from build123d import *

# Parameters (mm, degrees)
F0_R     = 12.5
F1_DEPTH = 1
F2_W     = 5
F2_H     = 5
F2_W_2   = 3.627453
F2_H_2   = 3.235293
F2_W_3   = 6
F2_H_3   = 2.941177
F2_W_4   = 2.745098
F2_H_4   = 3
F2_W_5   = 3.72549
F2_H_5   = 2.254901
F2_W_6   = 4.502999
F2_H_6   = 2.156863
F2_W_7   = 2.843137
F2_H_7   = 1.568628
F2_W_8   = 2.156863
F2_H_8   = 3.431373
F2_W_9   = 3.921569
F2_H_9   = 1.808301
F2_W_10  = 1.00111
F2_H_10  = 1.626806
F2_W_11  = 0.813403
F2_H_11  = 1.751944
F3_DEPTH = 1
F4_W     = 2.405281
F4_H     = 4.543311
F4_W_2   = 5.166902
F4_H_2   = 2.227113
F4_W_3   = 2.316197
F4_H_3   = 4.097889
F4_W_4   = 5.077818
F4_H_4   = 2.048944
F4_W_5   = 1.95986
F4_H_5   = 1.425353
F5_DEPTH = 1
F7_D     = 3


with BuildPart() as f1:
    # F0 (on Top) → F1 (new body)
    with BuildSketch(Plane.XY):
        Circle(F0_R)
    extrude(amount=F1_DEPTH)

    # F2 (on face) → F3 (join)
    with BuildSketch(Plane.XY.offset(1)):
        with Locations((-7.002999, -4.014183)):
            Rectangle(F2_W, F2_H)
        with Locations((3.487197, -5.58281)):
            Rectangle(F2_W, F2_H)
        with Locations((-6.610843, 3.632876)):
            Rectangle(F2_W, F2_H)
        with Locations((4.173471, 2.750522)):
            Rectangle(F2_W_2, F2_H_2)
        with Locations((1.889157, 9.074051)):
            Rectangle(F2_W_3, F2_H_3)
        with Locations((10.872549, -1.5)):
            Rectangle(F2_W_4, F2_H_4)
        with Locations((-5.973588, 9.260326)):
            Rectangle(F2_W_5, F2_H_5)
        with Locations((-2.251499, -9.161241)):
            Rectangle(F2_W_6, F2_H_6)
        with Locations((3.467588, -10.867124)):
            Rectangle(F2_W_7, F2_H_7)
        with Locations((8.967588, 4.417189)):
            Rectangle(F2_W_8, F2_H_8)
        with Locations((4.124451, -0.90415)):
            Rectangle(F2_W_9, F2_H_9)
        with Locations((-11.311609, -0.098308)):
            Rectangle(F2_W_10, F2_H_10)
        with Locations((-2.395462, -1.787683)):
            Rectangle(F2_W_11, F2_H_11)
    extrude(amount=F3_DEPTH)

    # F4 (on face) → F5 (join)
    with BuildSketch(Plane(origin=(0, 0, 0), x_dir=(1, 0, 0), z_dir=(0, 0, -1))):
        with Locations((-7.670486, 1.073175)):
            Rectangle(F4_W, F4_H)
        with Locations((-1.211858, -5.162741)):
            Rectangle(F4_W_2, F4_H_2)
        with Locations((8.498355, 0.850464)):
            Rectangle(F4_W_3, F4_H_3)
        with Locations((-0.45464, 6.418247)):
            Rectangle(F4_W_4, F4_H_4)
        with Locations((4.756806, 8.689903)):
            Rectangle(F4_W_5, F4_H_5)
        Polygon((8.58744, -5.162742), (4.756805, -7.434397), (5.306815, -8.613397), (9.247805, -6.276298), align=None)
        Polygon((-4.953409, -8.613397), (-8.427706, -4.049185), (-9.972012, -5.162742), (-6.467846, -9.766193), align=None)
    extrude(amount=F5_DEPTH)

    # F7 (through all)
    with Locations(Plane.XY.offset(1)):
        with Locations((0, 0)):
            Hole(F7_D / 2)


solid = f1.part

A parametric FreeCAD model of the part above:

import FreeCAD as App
import Part
import Sketcher
Q = App.Units.Quantity

doc = App.newDocument("Part")
body = doc.addObject("PartDesign::Body", "Body")

# Sketch on XY plane
sketch1 = body.newObject("Sketcher::SketchObject", "Sketch")
sketch1.AttachmentSupport = (doc.getObject("XY_Plane"), [""])
sketch1.MapMode = "FlatFace"
sketch1.addGeometry(Part.Circle(App.Vector(0, 0, 0), App.Vector(0, 0, 1), 12.5), False)
sketch1.addConstraint([
    Sketcher.Constraint("Coincident", 0, 3, -1, 1),
    Sketcher.Constraint("Diameter", 0, Q("25 mm")),
])
pad1 = body.newObject("PartDesign::Pad", "Pad")
pad1.Profile = sketch1
pad1.Length = 1

# Sketch on XY plane
sketch2 = body.newObject("Sketcher::SketchObject", "Sketch001")
sketch2.AttachmentSupport = (doc.getObject("XY_Plane"), [""])
sketch2.MapMode = "FlatFace"
sketch2.AttachmentOffset = App.Placement(App.Vector(0, 0, 1), App.Rotation())
sketch2.addGeometry([
    Part.LineSegment(App.Vector(-9.502999, -1.514183, 0), App.Vector(-9.502999, -6.514183, 0)),  # 0
    Part.LineSegment(App.Vector(-9.502999, -6.514183, 0), App.Vector(-4.502999, -6.514183, 0)),  # 1
    Part.LineSegment(App.Vector(-4.502999, -6.514183, 0), App.Vector(-4.502999, -1.514183, 0)),  # 2
    Part.LineSegment(App.Vector(-4.502999, -1.514183, 0), App.Vector(-9.502999, -1.514183, 0)),  # 3
    Part.LineSegment(App.Vector(0.987197, -3.08281, 0), App.Vector(0.987197, -8.08281, 0)),  # 4
    Part.LineSegment(App.Vector(0.987197, -8.08281, 0), App.Vector(5.987197, -8.08281, 0)),  # 5
    Part.LineSegment(App.Vector(5.987197, -8.08281, 0), App.Vector(5.987197, -3.08281, 0)),  # 6
    Part.LineSegment(App.Vector(5.987197, -3.08281, 0), App.Vector(0.987197, -3.08281, 0)),  # 7
    Part.LineSegment(App.Vector(-9.110843, 6.132876, 0), App.Vector(-9.110843, 1.132876, 0)),  # 8
    Part.LineSegment(App.Vector(-9.110843, 1.132876, 0), App.Vector(-4.110843, 1.132876, 0)),  # 9
    Part.LineSegment(App.Vector(-4.110843, 1.132876, 0), App.Vector(-4.110843, 6.132876, 0)),  # 10
    Part.LineSegment(App.Vector(-4.110843, 6.132876, 0), App.Vector(-9.110843, 6.132876, 0)),  # 11
    Part.LineSegment(App.Vector(2.359745, 4.368169, 0), App.Vector(2.359745, 1.132875, 0)),  # 12
    Part.LineSegment(App.Vector(2.359745, 1.132875, 0), App.Vector(5.987197, 1.132875, 0)),  # 13
    Part.LineSegment(App.Vector(5.987197, 1.132875, 0), App.Vector(5.987197, 4.368169, 0)),  # 14
    Part.LineSegment(App.Vector(5.987197, 4.368169, 0), App.Vector(2.359745, 4.368169, 0)),  # 15
    Part.LineSegment(App.Vector(-1.110843, 10.54464, 0), App.Vector(-1.110843, 7.603463, 0)),  # 16
    Part.LineSegment(App.Vector(-1.110843, 7.603463, 0), App.Vector(4.889157, 7.603463, 0)),  # 17
    Part.LineSegment(App.Vector(4.889157, 7.603463, 0), App.Vector(4.889157, 10.54464, 0)),  # 18
    Part.LineSegment(App.Vector(4.889157, 10.54464, 0), App.Vector(-1.110843, 10.54464, 0)),  # 19
    Part.LineSegment(App.Vector(9.5, 0, 0), App.Vector(9.5, -3, 0)),  # 20
    Part.LineSegment(App.Vector(9.5, -3, 0), App.Vector(12.245098, -3, 0)),  # 21
    Part.LineSegment(App.Vector(12.245098, -3, 0), App.Vector(12.245098, 0, 0)),  # 22
    Part.LineSegment(App.Vector(12.245098, 0, 0), App.Vector(9.5, 0, 0)),  # 23
    Part.LineSegment(App.Vector(-7.836333, 10.387776, 0), App.Vector(-7.836333, 8.132876, 0)),  # 24
    Part.LineSegment(App.Vector(-7.836333, 8.132876, 0), App.Vector(-4.110843, 8.132876, 0)),  # 25
    Part.LineSegment(App.Vector(-4.110843, 8.132876, 0), App.Vector(-4.110843, 10.387776, 0)),  # 26
    Part.LineSegment(App.Vector(-4.110843, 10.387776, 0), App.Vector(-7.836333, 10.387776, 0)),  # 27
    Part.LineSegment(App.Vector(-4.502999, -8.082809, 0), App.Vector(-4.502999, -10.239672, 0)),  # 28
    Part.LineSegment(App.Vector(-4.502999, -10.239672, 0), App.Vector(0, -10.239672, 0)),  # 29
    Part.LineSegment(App.Vector(0, -10.239672, 0), App.Vector(0, -8.082809, 0)),  # 30
    Part.LineSegment(App.Vector(0, -8.082809, 0), App.Vector(-4.502999, -8.082809, 0)),  # 31
    Part.LineSegment(App.Vector(2.046019, -10.08281, 0), App.Vector(2.046019, -11.651438, 0)),  # 32
    Part.LineSegment(App.Vector(2.046019, -11.651438, 0), App.Vector(4.889157, -11.651438, 0)),  # 33
    Part.LineSegment(App.Vector(4.889157, -11.651438, 0), App.Vector(4.889157, -10.08281, 0)),  # 34
    Part.LineSegment(App.Vector(4.889157, -10.08281, 0), App.Vector(2.046019, -10.08281, 0)),  # 35
    Part.LineSegment(App.Vector(7.889157, 6.132875, 0), App.Vector(7.889157, 2.701503, 0)),  # 36
    Part.LineSegment(App.Vector(7.889157, 2.701503, 0), App.Vector(10.046019, 2.701503, 0)),  # 37
    Part.LineSegment(App.Vector(10.046019, 2.701503, 0), App.Vector(10.046019, 6.132875, 0)),  # 38
    Part.LineSegment(App.Vector(10.046019, 6.132875, 0), App.Vector(7.889157, 6.132875, 0)),  # 39
    Part.LineSegment(App.Vector(2.163667, 0, 0), App.Vector(2.163667, -1.808301, 0)),  # 40
    Part.LineSegment(App.Vector(2.163667, -1.808301, 0), App.Vector(6.085235, -1.808301, 0)),  # 41
    Part.LineSegment(App.Vector(6.085235, -1.808301, 0), App.Vector(6.085235, 0, 0)),  # 42
    Part.LineSegment(App.Vector(6.085235, 0, 0), App.Vector(2.163667, 0, 0)),  # 43
    Part.LineSegment(App.Vector(-11.812164, 0.715095, 0), App.Vector(-11.812164, -0.911711, 0)),  # 44
    Part.LineSegment(App.Vector(-11.812164, -0.911711, 0), App.Vector(-10.811054, -0.911711, 0)),  # 45
    Part.LineSegment(App.Vector(-10.811054, -0.911711, 0), App.Vector(-10.811054, 0.715095, 0)),  # 46
    Part.LineSegment(App.Vector(-10.811054, 0.715095, 0), App.Vector(-11.812164, 0.715095, 0)),  # 47
    Part.LineSegment(App.Vector(-2.802163, -0.911711, 0), App.Vector(-2.802163, -2.663655, 0)),  # 48
    Part.LineSegment(App.Vector(-2.802163, -2.663655, 0), App.Vector(-1.98876, -2.663655, 0)),  # 49
    Part.LineSegment(App.Vector(-1.98876, -2.663655, 0), App.Vector(-1.98876, -0.911711, 0)),  # 50
    Part.LineSegment(App.Vector(-1.98876, -0.911711, 0), App.Vector(-2.802163, -0.911711, 0)),  # 51
], False)
sketch2.addConstraint([
    Sketcher.Constraint("Coincident", 0, 2, 1, 1),
    Sketcher.Constraint("Coincident", 1, 2, 2, 1),
    Sketcher.Constraint("Coincident", 2, 2, 3, 1),
    Sketcher.Constraint("Coincident", 3, 2, 0, 1),
    Sketcher.Constraint("Coincident", 4, 2, 5, 1),
    Sketcher.Constraint("Coincident", 5, 2, 6, 1),
    Sketcher.Constraint("Coincident", 6, 2, 7, 1),
    Sketcher.Constraint("Coincident", 7, 2, 4, 1),
    Sketcher.Constraint("Coincident", 8, 2, 9, 1),
    Sketcher.Constraint("Coincident", 9, 2, 10, 1),
    Sketcher.Constraint("Coincident", 10, 2, 11, 1),
    Sketcher.Constraint("Coincident", 11, 2, 8, 1),
    Sketcher.Constraint("Coincident", 12, 2, 13, 1),
    Sketcher.Constraint("Coincident", 13, 2, 14, 1),
    Sketcher.Constraint("Coincident", 14, 2, 15, 1),
    Sketcher.Constraint("Coincident", 15, 2, 12, 1),
    Sketcher.Constraint("Coincident", 16, 2, 17, 1),
    Sketcher.Constraint("Coincident", 17, 2, 18, 1),
    Sketcher.Constraint("Coincident", 18, 2, 19, 1),
    Sketcher.Constraint("Coincident", 19, 2, 16, 1),
    Sketcher.Constraint("Coincident", 20, 2, 21, 1),
    Sketcher.Constraint("Coincident", 21, 2, 22, 1),
    Sketcher.Constraint("Coincident", 22, 2, 23, 1),
    Sketcher.Constraint("Coincident", 23, 2, 20, 1),
    Sketcher.Constraint("Coincident", 24, 2, 25, 1),
    Sketcher.Constraint("Coincident", 25, 2, 26, 1),
    Sketcher.Constraint("Coincident", 26, 2, 27, 1),
    Sketcher.Constraint("Coincident", 27, 2, 24, 1),
    Sketcher.Constraint("Coincident", 28, 2, 29, 1),
    Sketcher.Constraint("Coincident", 29, 2, 30, 1),
    Sketcher.Constraint("Coincident", 30, 2, 31, 1),
    Sketcher.Constraint("Coincident", 31, 2, 28, 1),
    Sketcher.Constraint("Coincident", 32, 2, 33, 1),
    Sketcher.Constraint("Coincident", 33, 2, 34, 1),
    Sketcher.Constraint("Coincident", 34, 2, 35, 1),
    Sketcher.Constraint("Coincident", 35, 2, 32, 1),
    Sketcher.Constraint("Coincident", 36, 2, 37, 1),
    Sketcher.Constraint("Coincident", 37, 2, 38, 1),
    Sketcher.Constraint("Coincident", 38, 2, 39, 1),
    Sketcher.Constraint("Coincident", 39, 2, 36, 1),
    Sketcher.Constraint("Coincident", 40, 2, 41, 1),
    Sketcher.Constraint("Coincident", 41, 2, 42, 1),
    Sketcher.Constraint("Coincident", 42, 2, 43, 1),
    Sketcher.Constraint("Coincident", 43, 2, 40, 1),
    Sketcher.Constraint("Coincident", 44, 2, 45, 1),
    Sketcher.Constraint("Coincident", 45, 2, 46, 1),
    Sketcher.Constraint("Coincident", 46, 2, 47, 1),
    Sketcher.Constraint("Coincident", 47, 2, 44, 1),
    Sketcher.Constraint("Coincident", 48, 2, 49, 1),
    Sketcher.Constraint("Coincident", 49, 2, 50, 1),
    Sketcher.Constraint("Coincident", 50, 2, 51, 1),
    Sketcher.Constraint("Coincident", 51, 2, 48, 1),
    Sketcher.Constraint("Vertical", 0),
    Sketcher.Constraint("Horizontal", 1),
    Sketcher.Constraint("Vertical", 2),
    Sketcher.Constraint("Horizontal", 3),
    Sketcher.Constraint("Vertical", 4),
    Sketcher.Constraint("Horizontal", 5),
    Sketcher.Constraint("Vertical", 6),
    Sketcher.Constraint("Horizontal", 7),
    Sketcher.Constraint("Vertical", 8),
    Sketcher.Constraint("Horizontal", 9),
    Sketcher.Constraint("Vertical", 10),
    Sketcher.Constraint("Horizontal", 11),
    Sketcher.Constraint("Vertical", 12),
    Sketcher.Constraint("Horizontal", 13),
    Sketcher.Constraint("Vertical", 14),
    Sketcher.Constraint("Horizontal", 15),
    Sketcher.Constraint("Vertical", 16),
    Sketcher.Constraint("Horizontal", 17),
    Sketcher.Constraint("Vertical", 18),
    Sketcher.Constraint("Horizontal", 19),
    Sketcher.Constraint("Vertical", 20),
    Sketcher.Constraint("Horizontal", 21),
    Sketcher.Constraint("Vertical", 22),
    Sketcher.Constraint("Horizontal", 23),
    Sketcher.Constraint("Vertical", 24),
    Sketcher.Constraint("Horizontal", 25),
    Sketcher.Constraint("Vertical", 26),
    Sketcher.Constraint("Horizontal", 27),
    Sketcher.Constraint("Vertical", 28),
    Sketcher.Constraint("Horizontal", 29),
    Sketcher.Constraint("Vertical", 30),
    Sketcher.Constraint("Horizontal", 31),
    Sketcher.Constraint("Vertical", 32),
    Sketcher.Constraint("Horizontal", 33),
    Sketcher.Constraint("Vertical", 34),
    Sketcher.Constraint("Horizontal", 35),
    Sketcher.Constraint("Vertical", 36),
    Sketcher.Constraint("Horizontal", 37),
    Sketcher.Constraint("Vertical", 38),
    Sketcher.Constraint("Horizontal", 39),
    Sketcher.Constraint("Vertical", 40),
    Sketcher.Constraint("Horizontal", 41),
    Sketcher.Constraint("Vertical", 42),
    Sketcher.Constraint("Horizontal", 43),
    Sketcher.Constraint("Vertical", 44),
    Sketcher.Constraint("Horizontal", 45),
    Sketcher.Constraint("Vertical", 46),
    Sketcher.Constraint("Horizontal", 47),
    Sketcher.Constraint("Vertical", 48),
    Sketcher.Constraint("Horizontal", 49),
    Sketcher.Constraint("Vertical", 50),
    Sketcher.Constraint("Horizontal", 51),
    Sketcher.Constraint("PointOnObject", 22, 2, -1),
    Sketcher.Constraint("PointOnObject", 29, 2, -2),
    Sketcher.Constraint("PointOnObject", 42, 2, -1),
    Sketcher.Constraint("Horizontal", 9, 2, 12, 2),
    Sketcher.Constraint("Horizontal", 5, 2, 30, 2),
    Sketcher.Constraint("Horizontal", 11, 2, 38, 2),
    Sketcher.Constraint("Horizontal", 45, 2, 50, 2),
    Sketcher.Constraint("Vertical", 6, 2, 13, 2),
    Sketcher.Constraint("Vertical", 10, 2, 25, 2),
    Sketcher.Constraint("Vertical", 2, 2, 28, 2),
    Sketcher.Constraint("Vertical", 18, 2, 33, 2),
    Sketcher.Constraint("Equal", 3, 5),
    Sketcher.Constraint("Equal", 7, 9),
    Sketcher.Constraint("Equal", 11, 0),
    Sketcher.Constraint("Equal", 2, 4),
    Sketcher.Constraint("Equal", 6, 8),
    Sketcher.Constraint("Equal", 39, 28),
    Sketcher.Constraint("DistanceX", 1, 1, 1, 2, Q("5 mm")),
    Sketcher.Constraint("DistanceX", 17, 1, 17, 2, Q("6 mm")),
    Sketcher.Constraint("DistanceY", 20, 2, 20, 1, Q("3 mm")),
    Sketcher.Constraint("DistanceX", 10, 2, 16, 2, Q("3 mm")),
    Sketcher.Constraint("DistanceY", 11, 2, 24, 2, Q("2 mm")),
    Sketcher.Constraint("DistanceY", 34, 2, 5, 2, Q("2 mm")),
    Sketcher.Constraint("DistanceX", 17, 2, 36, 2, Q("3 mm")),
    Sketcher.Constraint("DistanceX", -1, 1, 20, 2, Q("9.5 mm")),
    Sketcher.Constraint("DistanceX", 29, 1, 29, 2, Q("4.502999 mm")),
    Sketcher.Constraint("DistanceX", 21, 1, 21, 2, Q("2.745098 mm")),
    Sketcher.Constraint("DistanceY", 24, 2, 24, 1, Q("2.254901 mm")),
    Sketcher.Constraint("DistanceY", 40, 2, 40, 1, Q("1.808301 mm")),
    Sketcher.Constraint("DistanceX", 25, 1, 25, 2, Q("3.72549 mm")),
    Sketcher.Constraint("DistanceX", 41, 1, 41, 2, Q("3.921569 mm")),
    Sketcher.Constraint("DistanceX", 45, 1, 45, 2, Q("1.00111 mm")),
    Sketcher.Constraint("DistanceY", 32, 2, 32, 1, Q("1.568628 mm")),
    Sketcher.Constraint("DistanceX", 6, 2, 21, 2, Q("6.257901 mm")),
    Sketcher.Constraint("DistanceY", 7, 2, 50, 2, Q("2.171099 mm")),
    Sketcher.Constraint("DistanceX", 13, 1, 13, 2, Q("3.627453 mm")),
    Sketcher.Constraint("DistanceX", 33, 1, 33, 2, Q("2.843137 mm")),
    Sketcher.Constraint("DistanceX", 37, 1, 37, 2, Q("2.156863 mm")),
    Sketcher.Constraint("DistanceX", 49, 1, 49, 2, Q("0.813403 mm")),
    Sketcher.Constraint("DistanceY", 12, 2, 12, 1, Q("3.235293 mm")),
    Sketcher.Constraint("DistanceY", 16, 2, 16, 1, Q("2.941177 mm")),
    Sketcher.Constraint("DistanceY", 36, 2, 36, 1, Q("3.431373 mm")),
    Sketcher.Constraint("DistanceY", 44, 2, 44, 1, Q("1.626806 mm")),
    Sketcher.Constraint("DistanceY", 48, 2, 48, 1, Q("1.751944 mm")),
    Sketcher.Constraint("DistanceY", 4, 2, -1, 1, Q("8.08281 mm")),
    Sketcher.Constraint("DistanceY", -1, 1, 14, 2, Q("4.368169 mm")),
    Sketcher.Constraint("DistanceY", -1, 1, 18, 2, Q("10.54464 mm")),
    Sketcher.Constraint("DistanceX", -1, 1, 32, 2, Q("2.046019 mm")),
    Sketcher.Constraint("DistanceX", 49, 2, -1, 1, Q("1.98876 mm")),
    Sketcher.Constraint("DistanceY", 3, 2, 8, 2, Q("2.647059 mm")),
    Sketcher.Constraint("DistanceX", 7, 2, 40, 2, Q("1.17647 mm")),
    Sketcher.Constraint("DistanceX", 44, 2, 8, 2, Q("2.701321 mm")),
])
pad2 = body.newObject("PartDesign::Pad", "Pad001")
pad2.Profile = sketch2
pad2.Length = 1

# Sketch on XY plane
sketch3 = body.newObject("Sketcher::SketchObject", "Sketch002")
sketch3.AttachmentSupport = (doc.getObject("XY_Plane"), [""])
sketch3.MapMode = "FlatFace"
sketch3.addGeometry([
    Part.LineSegment(App.Vector(-8.873126, -3.344831, 0), App.Vector(-8.873126, 1.198481, 0)),  # 0
    Part.LineSegment(App.Vector(-8.873126, 1.198481, 0), App.Vector(-6.467846, 1.198481, 0)),  # 1
    Part.LineSegment(App.Vector(-6.467846, 1.198481, 0), App.Vector(-6.467846, -3.344831, 0)),  # 2
    Part.LineSegment(App.Vector(-6.467846, -3.344831, 0), App.Vector(-8.873126, -3.344831, 0)),  # 3
    Part.LineSegment(App.Vector(-3.795309, 4.049184, 0), App.Vector(-3.795309, 6.276298, 0)),  # 4
    Part.LineSegment(App.Vector(-3.795309, 6.276298, 0), App.Vector(1.371593, 6.276298, 0)),  # 5
    Part.LineSegment(App.Vector(1.371593, 6.276298, 0), App.Vector(1.371593, 4.049184, 0)),  # 6
    Part.LineSegment(App.Vector(1.371593, 4.049184, 0), App.Vector(-3.795309, 4.049184, 0)),  # 7
    Part.LineSegment(App.Vector(7.340256, -2.899408, 0), App.Vector(7.340256, 1.198481, 0)),  # 8
    Part.LineSegment(App.Vector(7.340256, 1.198481, 0), App.Vector(9.656453, 1.198481, 0)),  # 9
    Part.LineSegment(App.Vector(9.656453, 1.198481, 0), App.Vector(9.656453, -2.899408, 0)),  # 10
    Part.LineSegment(App.Vector(9.656453, -2.899408, 0), App.Vector(7.340256, -2.899408, 0)),  # 11
    Part.LineSegment(App.Vector(-2.993549, -7.442719, 0), App.Vector(-2.993549, -5.393775, 0)),  # 12
    Part.LineSegment(App.Vector(-2.993549, -5.393775, 0), App.Vector(2.084269, -5.393775, 0)),  # 13
    Part.LineSegment(App.Vector(2.084269, -5.393775, 0), App.Vector(2.084269, -7.442719, 0)),  # 14
    Part.LineSegment(App.Vector(2.084269, -7.442719, 0), App.Vector(-2.993549, -7.442719, 0)),  # 15
    Part.LineSegment(App.Vector(3.776876, -9.402579, 0), App.Vector(3.776876, -7.977227, 0)),  # 16
    Part.LineSegment(App.Vector(3.776876, -7.977227, 0), App.Vector(5.736736, -7.977227, 0)),  # 17
    Part.LineSegment(App.Vector(5.736736, -7.977227, 0), App.Vector(5.736736, -9.402579, 0)),  # 18
    Part.LineSegment(App.Vector(5.736736, -9.402579, 0), App.Vector(3.776876, -9.402579, 0)),  # 19
    Part.LineSegment(App.Vector(8.58744, 5.162742, 0), App.Vector(4.756805, 7.434397, 0)),  # 20
    Part.LineSegment(App.Vector(4.756805, 7.434397, 0), App.Vector(5.306815, 8.613397, 0)),  # 21
    Part.LineSegment(App.Vector(5.306815, 8.613397, 0), App.Vector(9.247805, 6.276298, 0)),  # 22
    Part.LineSegment(App.Vector(9.247805, 6.276298, 0), App.Vector(8.58744, 5.162742, 0)),  # 23
    Part.LineSegment(App.Vector(-4.953409, 8.613397, 0), App.Vector(-8.427706, 4.049185, 0)),  # 24
    Part.LineSegment(App.Vector(-8.427706, 4.049185, 0), App.Vector(-9.972012, 5.162742, 0)),  # 25
    Part.LineSegment(App.Vector(-9.972012, 5.162742, 0), App.Vector(-6.467846, 9.766193, 0)),  # 26
    Part.LineSegment(App.Vector(-6.467846, 9.766193, 0), App.Vector(-4.953409, 8.613397, 0)),  # 27
], False)
sketch3.addConstraint([
    Sketcher.Constraint("Coincident", 0, 2, 1, 1),
    Sketcher.Constraint("Coincident", 1, 2, 2, 1),
    Sketcher.Constraint("Coincident", 2, 2, 3, 1),
    Sketcher.Constraint("Coincident", 3, 2, 0, 1),
    Sketcher.Constraint("Coincident", 4, 2, 5, 1),
    Sketcher.Constraint("Coincident", 5, 2, 6, 1),
    Sketcher.Constraint("Coincident", 6, 2, 7, 1),
    Sketcher.Constraint("Coincident", 7, 2, 4, 1),
    Sketcher.Constraint("Coincident", 8, 2, 9, 1),
    Sketcher.Constraint("Coincident", 9, 2, 10, 1),
    Sketcher.Constraint("Coincident", 10, 2, 11, 1),
    Sketcher.Constraint("Coincident", 11, 2, 8, 1),
    Sketcher.Constraint("Coincident", 12, 2, 13, 1),
    Sketcher.Constraint("Coincident", 13, 2, 14, 1),
    Sketcher.Constraint("Coincident", 14, 2, 15, 1),
    Sketcher.Constraint("Coincident", 15, 2, 12, 1),
    Sketcher.Constraint("Coincident", 16, 2, 17, 1),
    Sketcher.Constraint("Coincident", 17, 2, 18, 1),
    Sketcher.Constraint("Coincident", 18, 2, 19, 1),
    Sketcher.Constraint("Coincident", 19, 2, 16, 1),
    Sketcher.Constraint("Coincident", 20, 2, 21, 1),
    Sketcher.Constraint("Coincident", 21, 2, 22, 1),
    Sketcher.Constraint("Coincident", 22, 2, 23, 1),
    Sketcher.Constraint("Coincident", 23, 2, 20, 1),
    Sketcher.Constraint("Coincident", 24, 2, 25, 1),
    Sketcher.Constraint("Coincident", 25, 2, 26, 1),
    Sketcher.Constraint("Coincident", 26, 2, 27, 1),
    Sketcher.Constraint("Coincident", 27, 2, 24, 1),
    Sketcher.Constraint("Vertical", 0),
    Sketcher.Constraint("Horizontal", 1),
    Sketcher.Constraint("Vertical", 2),
    Sketcher.Constraint("Horizontal", 3),
    Sketcher.Constraint("Vertical", 4),
    Sketcher.Constraint("Horizontal", 5),
    Sketcher.Constraint("Vertical", 6),
    Sketcher.Constraint("Horizontal", 7),
    Sketcher.Constraint("Vertical", 8),
    Sketcher.Constraint("Horizontal", 9),
    Sketcher.Constraint("Vertical", 10),
    Sketcher.Constraint("Horizontal", 11),
    Sketcher.Constraint("Vertical", 12),
    Sketcher.Constraint("Horizontal", 13),
    Sketcher.Constraint("Vertical", 14),
    Sketcher.Constraint("Horizontal", 15),
    Sketcher.Constraint("Vertical", 16),
    Sketcher.Constraint("Horizontal", 17),
    Sketcher.Constraint("Vertical", 18),
    Sketcher.Constraint("Horizontal", 19),
    Sketcher.Constraint("Parallel", 20, 22),
    Sketcher.Constraint("Perpendicular", 22, 23),
    Sketcher.Constraint("Parallel", 24, 26),
    Sketcher.Constraint("Perpendicular", 26, 27),
    Sketcher.Constraint("Horizontal", 1, 2, 8, 2),
    Sketcher.Constraint("Horizontal", 5, 2, 22, 2),
    Sketcher.Constraint("Horizontal", 7, 2, 24, 2),
    Sketcher.Constraint("Horizontal", 23, 2, 25, 2),
    Sketcher.Constraint("Horizontal", 21, 2, 27, 2),
    Sketcher.Constraint("Vertical", 2, 2, 26, 2),
    Sketcher.Constraint("DistanceY", 20, 2, 21, 2, Q("1.179 mm")),
    Sketcher.Constraint("DistanceX", 20, 2, 22, 2, Q("4.491 mm")),
    Sketcher.Constraint("DistanceX", 1, 1, 1, 2, Q("2.405281 mm")),
    Sketcher.Constraint("DistanceX", 17, 1, 17, 2, Q("1.95986 mm")),
    Sketcher.Constraint("DistanceY", 0, 1, 0, 2, Q("4.543311 mm")),
    Sketcher.Constraint("DistanceY", 8, 1, 8, 2, Q("4.097889 mm")),
    Sketcher.Constraint("DistanceY", 5, 2, 20, 2, Q("1.158099 mm")),
    Sketcher.Constraint("DistanceX", 27, 2, 4, 2, Q("1.1581 mm")),
    Sketcher.Constraint("Distance", 20, Q("4.453558 mm")),
    Sketcher.Constraint("DistanceX", 5, 1, 5, 2, Q("5.166902 mm")),
    Sketcher.Constraint("DistanceX", 9, 1, 9, 2, Q("2.316197 mm")),
    Sketcher.Constraint("DistanceX", 13, 1, 13, 2, Q("5.077818 mm")),
    Sketcher.Constraint("DistanceY", 4, 1, 4, 2, Q("2.227113 mm")),
    Sketcher.Constraint("DistanceY", 12, 1, 12, 2, Q("2.048944 mm")),
    Sketcher.Constraint("DistanceY", 16, 1, 16, 2, Q("1.425353 mm")),
    Sketcher.Constraint("DistanceY", -1, 1, 0, 2, Q("1.198481 mm")),
    Sketcher.Constraint("DistanceX", 4, 2, -1, 1, Q("3.795309 mm")),
    Sketcher.Constraint("DistanceX", 12, 2, -1, 1, Q("2.993549 mm")),
    Sketcher.Constraint("DistanceY", 14, 2, -1, 1, Q("7.442719 mm")),
    Sketcher.Constraint("DistanceY", 18, 2, -1, 1, Q("9.402579 mm")),
    Sketcher.Constraint("DistanceX", -1, 1, 23, 2, Q("8.58744 mm")),
    Sketcher.Constraint("DistanceY", -1, 1, 23, 2, Q("5.162742 mm")),
    Sketcher.Constraint("DistanceX", 1, 2, 5, 2, Q("7.839438 mm")),
    Sketcher.Constraint("DistanceX", 6, 2, 9, 2, Q("8.28486 mm")),
    Sketcher.Constraint("DistanceX", 16, 2, 11, 2, Q("3.56338 mm")),
    Sketcher.Constraint("DistanceX", 0, 2, 24, 2, Q("0.44542 mm")),
])
pad3 = body.newObject("PartDesign::Pad", "Pad002")
pad3.Profile = sketch3
pad3.Length = 1
pad3.Reversed = True

# Sketch on XY plane
sketch4 = body.newObject("Sketcher::SketchObject", "Sketch003")
sketch4.AttachmentSupport = (doc.getObject("XY_Plane"), [""])
sketch4.MapMode = "FlatFace"
sketch4.AttachmentOffset = App.Placement(App.Vector(0, 0, 1), App.Rotation())
sketch4.addGeometry(Part.Circle(App.Vector(0, 0, 0), App.Vector(0, 0, 1), 1.5), False)
sketch4.addConstraint([
    Sketcher.Constraint("Coincident", 0, 3, -1, 1),
    Sketcher.Constraint("Diameter", 0, Q("3 mm")),
])
doc.recompute()
hole = body.newObject("PartDesign::Hole", "Hole")
hole.Profile = sketch4
hole.ThreadType = "None"
hole.Diameter = 3
hole.DepthType = "ThroughAll"

doc.recompute()
